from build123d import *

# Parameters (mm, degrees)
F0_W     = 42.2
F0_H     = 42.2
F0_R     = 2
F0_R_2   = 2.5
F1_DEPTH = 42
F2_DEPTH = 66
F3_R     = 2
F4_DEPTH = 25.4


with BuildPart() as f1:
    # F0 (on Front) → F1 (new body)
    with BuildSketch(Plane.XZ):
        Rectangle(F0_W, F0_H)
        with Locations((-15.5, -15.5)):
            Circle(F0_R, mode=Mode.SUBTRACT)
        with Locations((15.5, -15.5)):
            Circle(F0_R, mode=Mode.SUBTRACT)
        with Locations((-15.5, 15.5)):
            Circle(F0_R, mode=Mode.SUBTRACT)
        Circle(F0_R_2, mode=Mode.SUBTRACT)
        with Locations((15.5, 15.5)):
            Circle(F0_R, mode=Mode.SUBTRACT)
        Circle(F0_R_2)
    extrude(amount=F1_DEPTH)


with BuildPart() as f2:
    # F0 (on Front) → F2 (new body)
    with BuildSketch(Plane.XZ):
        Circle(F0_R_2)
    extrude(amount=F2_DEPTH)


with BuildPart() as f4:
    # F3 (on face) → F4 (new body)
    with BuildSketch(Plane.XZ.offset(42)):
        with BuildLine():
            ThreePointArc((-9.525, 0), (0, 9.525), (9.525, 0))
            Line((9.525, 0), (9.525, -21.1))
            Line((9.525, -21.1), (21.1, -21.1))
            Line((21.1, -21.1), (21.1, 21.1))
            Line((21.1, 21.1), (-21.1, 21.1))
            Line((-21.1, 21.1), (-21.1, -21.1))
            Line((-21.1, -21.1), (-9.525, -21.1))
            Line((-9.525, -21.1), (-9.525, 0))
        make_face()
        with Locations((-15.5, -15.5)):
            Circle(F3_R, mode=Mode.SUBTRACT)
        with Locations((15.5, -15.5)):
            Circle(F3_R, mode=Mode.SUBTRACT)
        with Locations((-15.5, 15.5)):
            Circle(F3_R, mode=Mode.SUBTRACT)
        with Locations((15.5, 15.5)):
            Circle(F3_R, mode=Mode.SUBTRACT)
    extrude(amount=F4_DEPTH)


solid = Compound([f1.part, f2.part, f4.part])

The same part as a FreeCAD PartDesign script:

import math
import FreeCAD as App
import Part
import Sketcher

V = App.Vector
Q = App.Units.Quantity

doc = App.newDocument("Part")
params = doc.addObject("Spreadsheet::Sheet", "Params")
for row, (alias, value) in enumerate([
    ("sketch1_diameter", "4 mm"),
    ("sketch1_width", "42.2 mm"),
    ("pad1_length", "42 mm"),
    ("sketch2_diameter", "5 mm"),
    ("pad2_length", "66 mm"),
    ("sketch3_diameter", "4 mm"),
    ("sketch3_width", "42.2 mm"),
    ("pad3_length", "25.4 mm"),
], start=1):
    params.set(f"A{row}", alias)
    params.set(f"B{row}", "=" + value)
    params.setAlias(f"B{row}", alias)

body = doc.addObject("PartDesign::Body", "Body")

# Sketch on XZ plane
sketch1 = body.newObject("Sketcher::SketchObject", "Sketch")
sketch1.AttachmentSupport = (doc.getObject("XZ_Plane"), [""])
sketch1.MapMode = "FlatFace"
sketch1.addGeometry([
    Part.LineSegment(V(-21.1, 21.1, 0), V(-21.1, -21.1, 0)),  # 0
    Part.LineSegment(V(-21.1, -21.1, 0), V(21.1, -21.1, 0)),  # 1
    Part.LineSegment(V(21.1, -21.1, 0), V(21.1, 21.1, 0)),  # 2
    Part.LineSegment(V(21.1, 21.1, 0), V(-21.1, 21.1, 0)),  # 3
    Part.Circle(V(-15.5, -15.5, 0), V(0, 0, 1), 2),  # 4
    Part.Circle(V(15.5, -15.5, 0), V(0, 0, 1), 2),  # 5
    Part.Circle(V(-15.5, 15.5, 0), V(0, 0, 1), 2),  # 6
    Part.Circle(V(15.5, 15.5, 0), V(0, 0, 1), 2),  # 7
], False)
sketch1.addConstraint([
    Sketcher.Constraint("Coincident", 0, 2, 1, 1),
    Sketcher.Constraint("Coincident", 1, 2, 2, 1),
    Sketcher.Constraint("Coincident", 2, 2, 3, 1),
    Sketcher.Constraint("Coincident", 3, 2, 0, 1),
    Sketcher.Constraint("Vertical", 0),
    Sketcher.Constraint("Horizontal", 1),
    Sketcher.Constraint("Vertical", 2),
    Sketcher.Constraint("Horizontal", 3),
    Sketcher.Constraint("Equal", 4, 5),
    Sketcher.Constraint("Equal", 5, 6),
    Sketcher.Constraint("Equal", 6, 7),
    Sketcher.Constraint("Symmetric", 5, 3, 6, 3, -1, 1),
    Sketcher.Constraint("Symmetric", 4, 3, 7, 3, -1, 1),
    Sketcher.Constraint("Symmetric", 0, 2, 2, 2, -1, 1),
    Sketcher.Constraint("Symmetric", 4, 3, 5, 3, -2),
    Sketcher.Constraint("Equal", 3, 0),
    Sketcher.Constraint("Diameter", 4, Q("4 mm")),
    Sketcher.Constraint("DistanceX", 1, 1, 1, 2, Q("42.2 mm")),
    Sketcher.Constraint("DistanceX", 4, 3, 5, 3, Q("31 mm")),
    Sketcher.Constraint("DistanceY", 4, 3, 6, 3, Q("31 mm")),
])
sketch1.setExpression("Constraints[16]", "Params.sketch1_diameter")
sketch1.setExpression("Constraints[17]", "Params.sketch1_width")
pad1 = body.newObject("PartDesign::Pad", "Pad")
pad1.Profile = sketch1
pad1.setExpression("Length", "Params.pad1_length")
body2 = doc.addObject("PartDesign::Body", "Body001")

# Sketch on XZ plane
sketch2 = body2.newObject("Sketcher::SketchObject", "Sketch001")
sketch2.AttachmentSupport = (doc.getObject("XZ_Plane001"), [""])
sketch2.MapMode = "FlatFace"
sketch2.addGeometry(Part.Circle(V(0, 0, 0), V(0, 0, 1), 2.5), False)
sketch2.addConstraint([
    Sketcher.Constraint("Coincident", 0, 3, -1, 1),
    Sketcher.Constraint("Diameter", 0, Q("5 mm")),
])
sketch2.setExpression("Constraints[1]", "Params.sketch2_diameter")
pad2 = body2.newObject("PartDesign::Pad", "Pad001")
pad2.Profile = sketch2
pad2.setExpression("Length", "Params.pad2_length")
body3 = doc.addObject("PartDesign::Body", "Body002")

# Sketch on XZ plane
sketch3 = body3.newObject("Sketcher::SketchObject", "Sketch002")
sketch3.AttachmentSupport = (doc.getObject("XZ_Plane002"), [""])
sketch3.MapMode = "FlatFace"
sketch3.AttachmentOffset = App.Placement(V(0, 0, 42), App.Rotation())
sketch3.addGeometry([
    Part.ArcOfCircle(Part.Circle(V(0, 0, 0), V(0, 0, 1), 9.5), math.radians(0), math.radians(180)),  # 0
    Part.LineSegment(V(9.5, 0, 0), V(9.5, -21.1, 0)),  # 1
    Part.LineSegment(V(9.5, -21.1, 0), V(21.1, -21.1, 0)),  # 2
    Part.LineSegment(V(21.1, -21.1, 0), V(21.1, 21.1, 0)),  # 3
    Part.LineSegment(V(21.1, 21.1, 0), V(-21.1, 21.1, 0)),  # 4
    Part.LineSegment(V(-21.1, 21.1, 0), V(-21.1, -21.1, 0)),  # 5
    Part.LineSegment(V(-21.1, -21.1, 0), V(-9.5, -21.1, 0)),  # 6
    Part.LineSegment(V(-9.5, -21.1, 0), V(-9.5, 0, 0)),  # 7
    Part.Circle(V(-15.5, -15.5, 0), V(0, 0, 1), 2),  # 8
    Part.Circle(V(15.5, -15.5, 0), V(0, 0, 1), 2),  # 9
    Part.Circle(V(-15.5, 15.5, 0), V(0, 0, 1), 2),  # 10
    Part.Circle(V(15.5, 15.5, 0), V(0, 0, 1), 2),  # 11
], False)
sketch3.addConstraint([
    Sketcher.Constraint("Tangent", 0, 1, 1, 1),
    Sketcher.Constraint("Coincident", 1, 2, 2, 1),
    Sketcher.Constraint("Coincident", 2, 2, 3, 1),
    Sketcher.Constraint("Coincident", 3, 2, 4, 1),
    Sketcher.Constraint("Coincident", 4, 2, 5, 1),
    Sketcher.Constraint("Coincident", 5, 2, 6, 1),
    Sketcher.Constraint("Coincident", 6, 2, 7, 1),
    Sketcher.Constraint("Tangent", 7, 2, 0, 2),
    Sketcher.Constraint("Vertical", 1),
    Sketcher.Constraint("Horizontal", 2),
    Sketcher.Constraint("Vertical", 3),
    Sketcher.Constraint("Horizontal", 4),
    Sketcher.Constraint("Vertical", 5),
    Sketcher.Constraint("Horizontal", 6),
    Sketcher.Constraint("Vertical", 7),
    Sketcher.Constraint("Coincident", 0, 3, -1, 1),
    Sketcher.Constraint("Equal", 8, 9),
    Sketcher.Constraint("Equal", 9, 10),
    Sketcher.Constraint("Equal", 10, 11),
    Sketcher.Constraint("Symmetric", 9, 3, 10, 3, -1, 1),
    Sketcher.Constraint("Symmetric", 8, 3, 11, 3, -1, 1),
    Sketcher.Constraint("Symmetric", 2, 2, 4, 2, -1, 1),
    Sketcher.Constraint("Symmetric", 8, 3, 9, 3, -2),
    Sketcher.Constraint("Horizontal", 2, 2, 5, 2),
    Sketcher.Constraint("Equal", 4, 3),
    Sketcher.Constraint("Diameter", 8, Q("4 mm")),
    Sketcher.Constraint("DistanceX", 4, 2, 4, 1, Q("42.2 mm")),
    Sketcher.Constraint("Radius", 0, Q("9.525 mm")),
    Sketcher.Constraint("DistanceX", 8, 3, 9, 3, Q("31 mm")),
    Sketcher.Constraint("DistanceY", 8, 3, 10, 3, Q("31 mm")),
])
sketch3.setExpression("Constraints[25]", "Params.sketch3_diameter")
sketch3.setExpression("Constraints[26]", "Params.sketch3_width")
pad3 = body3.newObject("PartDesign::Pad", "Pad002")
pad3.Profile = sketch3
pad3.setExpression("Length", "Params.pad3_length")

doc.recompute()
